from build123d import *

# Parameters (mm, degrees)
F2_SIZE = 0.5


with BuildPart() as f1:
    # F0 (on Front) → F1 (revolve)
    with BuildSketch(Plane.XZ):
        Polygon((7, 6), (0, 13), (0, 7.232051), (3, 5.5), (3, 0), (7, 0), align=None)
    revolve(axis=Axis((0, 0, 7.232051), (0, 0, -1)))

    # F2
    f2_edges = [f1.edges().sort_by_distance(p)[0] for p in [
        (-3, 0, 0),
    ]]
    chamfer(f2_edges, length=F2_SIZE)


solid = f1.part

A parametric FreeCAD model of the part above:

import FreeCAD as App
import Part
import Sketcher

V = App.Vector
Q = App.Units.Quantity


def edges_at(feature, points):
    """Names of the edges that pass closest to the given points."""
    edges = feature.Shape.Edges
    near = lambda p: min(range(len(edges)), key=lambda i: edges[i].distToShape(Part.Vertex(*p))[0])
    return sorted({f"Edge{near(p) + 1}" for p in points})


def add_polygon(sketch, points):
    """Adds a closed chain of lines whose ends are joined by coincident constraints."""
    first, n = sketch.GeometryCount, len(points)
    for a, b in zip(points, points[1:] + points[:1]):
        sketch.addGeometry(Part.LineSegment(App.Vector(*a, 0), App.Vector(*b, 0)), False)
    for i in range(n):
        sketch.addConstraint(Sketcher.Constraint("Coincident", first + i, 2, first + (i + 1) % n, 1))

doc = App.newDocument("Part")
body = doc.addObject("PartDesign::Body", "Body")

sketch1 = doc.addObject("Sketcher::SketchObject", "Sketch")
body.addObject(sketch1)
sketch1.AttachmentSupport = (doc.XZ_Plane, [""])
sketch1.MapMode = "FlatFace"
add_polygon(sketch1, [(7, 6), (0, 13), (0, 7.2), (3, 5.5), (3, 0), (7, 0)])
sketch1.addConstraint([
    Sketcher.Constraint("Vertical", 1),
    Sketcher.Constraint("Vertical", 3),
    Sketcher.Constraint("Horizontal", 4),
    Sketcher.Constraint("Vertical", 5),
    Sketcher.Constraint("PointOnObject", 0, 2, -2),
    Sketcher.Constraint("PointOnObject", 3, 2, -1),
    Sketcher.Constraint("DistanceX", 4, 1, 4, 2, 4.0),
    Sketcher.Constraint("DistanceY", 5, 1, 5, 2, 6.0),
    Sketcher.Constraint("Angle", 0, Q("135 deg")),
    Sketcher.Constraint("Angle", 2, Q("-30.000003 deg")),
    Sketcher.Constraint("DistanceY", 3, 2, 3, 1, 5.5),
    Sketcher.Constraint("DistanceY", -1, 1, 0, 2, 13.0),
])
revolution = doc.addObject("PartDesign::Revolution", "Revolution")
body.addObject(revolution)
revolution.Profile = sketch1
revolution.ReferenceAxis = (sketch1, ["V_Axis"])
revolution.Angle = 360
doc.recompute()

chamfer = doc.addObject("PartDesign::Chamfer", "Chamfer")
body.addObject(chamfer)
chamfer.Base = (revolution, edges_at(revolution, [(-3, 0, 0)]))
chamfer.Size = 0.5

doc.recompute()
